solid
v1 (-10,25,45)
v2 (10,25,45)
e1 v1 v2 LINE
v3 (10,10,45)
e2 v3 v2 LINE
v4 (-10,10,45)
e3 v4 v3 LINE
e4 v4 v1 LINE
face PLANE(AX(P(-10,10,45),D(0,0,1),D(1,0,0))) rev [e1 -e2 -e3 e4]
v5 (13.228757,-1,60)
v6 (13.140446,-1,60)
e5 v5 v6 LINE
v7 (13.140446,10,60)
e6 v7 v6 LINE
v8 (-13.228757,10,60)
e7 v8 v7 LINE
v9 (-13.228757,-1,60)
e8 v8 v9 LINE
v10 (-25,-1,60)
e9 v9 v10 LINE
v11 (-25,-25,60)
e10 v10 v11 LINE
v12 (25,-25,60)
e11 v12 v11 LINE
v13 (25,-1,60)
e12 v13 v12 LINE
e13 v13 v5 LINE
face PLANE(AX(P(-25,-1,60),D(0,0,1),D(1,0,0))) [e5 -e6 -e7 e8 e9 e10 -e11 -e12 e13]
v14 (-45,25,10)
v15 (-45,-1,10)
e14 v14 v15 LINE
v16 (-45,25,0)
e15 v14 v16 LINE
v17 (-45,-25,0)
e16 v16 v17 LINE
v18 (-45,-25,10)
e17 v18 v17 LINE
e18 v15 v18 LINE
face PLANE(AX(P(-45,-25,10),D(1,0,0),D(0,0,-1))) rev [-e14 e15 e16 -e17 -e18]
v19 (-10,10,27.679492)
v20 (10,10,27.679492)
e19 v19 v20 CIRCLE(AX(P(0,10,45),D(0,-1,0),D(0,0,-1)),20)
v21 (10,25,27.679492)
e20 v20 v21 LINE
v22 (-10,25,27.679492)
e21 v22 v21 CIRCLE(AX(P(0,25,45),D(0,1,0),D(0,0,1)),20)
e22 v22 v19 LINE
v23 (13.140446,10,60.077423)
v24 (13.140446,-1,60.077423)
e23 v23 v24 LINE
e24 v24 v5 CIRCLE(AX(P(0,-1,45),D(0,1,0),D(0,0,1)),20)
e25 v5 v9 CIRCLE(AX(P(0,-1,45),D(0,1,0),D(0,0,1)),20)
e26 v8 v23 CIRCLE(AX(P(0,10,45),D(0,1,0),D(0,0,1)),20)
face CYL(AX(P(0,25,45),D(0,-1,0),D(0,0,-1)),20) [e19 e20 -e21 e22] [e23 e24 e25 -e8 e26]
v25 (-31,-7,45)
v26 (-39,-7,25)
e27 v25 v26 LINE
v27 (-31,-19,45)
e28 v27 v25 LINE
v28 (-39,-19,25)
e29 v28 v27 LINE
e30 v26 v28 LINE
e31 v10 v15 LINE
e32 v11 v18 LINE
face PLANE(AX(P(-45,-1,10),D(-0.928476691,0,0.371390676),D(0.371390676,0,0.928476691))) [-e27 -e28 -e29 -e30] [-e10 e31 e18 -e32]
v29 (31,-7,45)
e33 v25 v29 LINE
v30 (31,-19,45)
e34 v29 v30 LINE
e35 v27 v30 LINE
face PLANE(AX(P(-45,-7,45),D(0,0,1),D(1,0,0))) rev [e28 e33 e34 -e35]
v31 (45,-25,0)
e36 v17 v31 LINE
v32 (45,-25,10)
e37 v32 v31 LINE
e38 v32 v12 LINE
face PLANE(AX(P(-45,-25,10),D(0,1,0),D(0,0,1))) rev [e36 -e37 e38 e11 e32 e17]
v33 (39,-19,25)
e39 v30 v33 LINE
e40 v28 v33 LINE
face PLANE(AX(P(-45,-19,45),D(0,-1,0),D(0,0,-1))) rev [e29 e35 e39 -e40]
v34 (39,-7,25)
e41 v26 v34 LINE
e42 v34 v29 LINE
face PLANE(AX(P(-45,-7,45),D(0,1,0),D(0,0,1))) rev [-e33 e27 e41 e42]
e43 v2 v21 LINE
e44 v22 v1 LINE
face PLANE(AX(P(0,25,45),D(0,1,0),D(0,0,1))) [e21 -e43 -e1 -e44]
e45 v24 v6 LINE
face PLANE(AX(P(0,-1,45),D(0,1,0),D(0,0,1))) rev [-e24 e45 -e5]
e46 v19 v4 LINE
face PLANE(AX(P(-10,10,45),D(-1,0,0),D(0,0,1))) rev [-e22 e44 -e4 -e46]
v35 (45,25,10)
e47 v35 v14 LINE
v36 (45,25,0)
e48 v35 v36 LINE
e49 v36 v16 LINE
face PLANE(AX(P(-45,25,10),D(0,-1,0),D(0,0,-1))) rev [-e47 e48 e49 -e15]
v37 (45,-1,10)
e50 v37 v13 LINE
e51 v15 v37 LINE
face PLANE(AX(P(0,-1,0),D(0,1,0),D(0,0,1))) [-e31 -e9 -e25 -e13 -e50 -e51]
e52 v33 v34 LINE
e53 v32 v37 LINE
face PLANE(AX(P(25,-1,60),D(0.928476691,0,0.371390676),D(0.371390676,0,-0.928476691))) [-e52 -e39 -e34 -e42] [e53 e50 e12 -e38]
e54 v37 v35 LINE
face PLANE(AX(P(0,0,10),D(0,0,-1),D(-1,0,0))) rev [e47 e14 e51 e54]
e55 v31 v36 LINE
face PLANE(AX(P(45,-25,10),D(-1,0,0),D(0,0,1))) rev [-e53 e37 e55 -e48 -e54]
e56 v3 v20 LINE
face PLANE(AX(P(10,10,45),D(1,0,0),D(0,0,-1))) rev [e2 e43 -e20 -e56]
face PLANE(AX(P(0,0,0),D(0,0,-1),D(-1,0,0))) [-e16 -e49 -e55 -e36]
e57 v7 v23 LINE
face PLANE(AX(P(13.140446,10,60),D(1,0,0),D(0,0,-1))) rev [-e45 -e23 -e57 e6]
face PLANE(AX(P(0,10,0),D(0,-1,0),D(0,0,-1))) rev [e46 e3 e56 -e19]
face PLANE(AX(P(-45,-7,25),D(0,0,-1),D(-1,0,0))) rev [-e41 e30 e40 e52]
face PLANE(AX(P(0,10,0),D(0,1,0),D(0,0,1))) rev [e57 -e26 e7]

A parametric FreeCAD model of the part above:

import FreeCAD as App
import Part
import Sketcher

V = App.Vector
Q = App.Units.Quantity

doc = App.newDocument("Part")
body = doc.addObject("PartDesign::Body", "Body")

sketch1 = doc.addObject("Sketcher::SketchObject", "Sketch")
body.addObject(sketch1)
sketch1.AttachmentSupport = (doc.XY_Plane, [""])
sketch1.MapMode = "FlatFace"
sketch1.addGeometry([
    Part.LineSegment(V(-45, 25, 0), V(-45, -25, 0)),
    Part.LineSegment(V(-45, -25, 0), V(45, -25, 0)),
    Part.LineSegment(V(45, -25, 0), V(45, 25, 0)),
    Part.LineSegment(V(45, 25, 0), V(-45, 25, 0)),
], False)
sketch1.addConstraint([
    Sketcher.Constraint("Coincident", 0, 2, 1, 1),
    Sketcher.Constraint("Coincident", 1, 2, 2, 1),
    Sketcher.Constraint("Coincident", 2, 2, 3, 1),
    Sketcher.Constraint("Coincident", 3, 2, 0, 1),
    Sketcher.Constraint("Vertical", 0),
    Sketcher.Constraint("Horizontal", 1),
    Sketcher.Constraint("Vertical", 2),
    Sketcher.Constraint("Horizontal", 3),
    Sketcher.Constraint("Symmetric", 0, 2, 2, 2, -1, 1),
    Sketcher.Constraint("DistanceX", 1, 1, 1, 2, Q("90 mm")),
    Sketcher.Constraint("DistanceY", 0, 2, 0, 1, Q("50 mm")),
])
pad1 = doc.addObject("PartDesign::Pad", "Pad")
body.addObject(pad1)
pad1.Profile = sketch1
pad1.Length = 10

sketch2 = doc.addObject("Sketcher::SketchObject", "Sketch001")
body.addObject(sketch2)
sketch2.AttachmentSupport = (doc.XZ_Plane, [""])
sketch2.MapMode = "FlatFace"
sketch2.AttachmentOffset = App.Placement(V(0, 0, 25), App.Rotation())
sketch2.addGeometry([
    Part.LineSegment(V(-45, 10, 0), V(45, 10, 0)),
    Part.LineSegment(V(45, 10, 0), V(25, 60, 0)),
    Part.LineSegment(V(25, 60, 0), V(-25, 60, 0)),
    Part.LineSegment(V(-25, 60, 0), V(-45, 10, 0)),
], False)
sketch2.addConstraint([
    Sketcher.Constraint("Coincident", 0, 2, 1, 1),
    Sketcher.Constraint("Coincident", 1, 2, 2, 1),
    Sketcher.Constraint("Coincident", 2, 2, 3, 1),
    Sketcher.Constraint("Coincident", 3, 2, 0, 1),
    Sketcher.Constraint("Horizontal", 0),
    Sketcher.Constraint("Horizontal", 2),
    Sketcher.Constraint("Equal", 1, 3),
    Sketcher.Constraint("DistanceX", 0, 1, 0, 2, Q("90 mm")),
    Sketcher.Constraint("DistanceX", 2, 2, 2, 1, Q("50 mm")),
    Sketcher.Constraint("DistanceX", -1, 1, 0, 2, Q("45 mm")),
    Sketcher.Constraint("DistanceY", -1, 1, 0, 2, Q("10 mm")),
    Sketcher.Constraint("DistanceY", -1, 1, 1, 2, Q("60 mm")),
])
pad2 = doc.addObject("PartDesign::Pad", "Pad001")
body.addObject(pad2)
pad2.Profile = sketch2
pad2.Length = 24
pad2.Reversed = True

sketch3 = doc.addObject("Sketcher::SketchObject", "Sketch002")
body.addObject(sketch3)
sketch3.AttachmentSupport = (doc.XZ_Plane, [""])
sketch3.MapMode = "FlatFace"
sketch3.AttachmentOffset = App.Placement(V(0, 0, 1), App.Rotation())
sketch3.addGeometry(Part.Circle(V(0, 45, 0), V(0, 0, 1), 20), False)
sketch3.addConstraint([
    Sketcher.Constraint("PointOnObject", 0, 3, -2),
    Sketcher.Constraint("Diameter", 0, Q("40 mm")),
    Sketcher.Constraint("DistanceY", -1, 1, 0, 3, Q("45 mm")),
])
pad3 = doc.addObject("PartDesign::Pad", "Pad002")
body.addObject(pad3)
pad3.Profile = sketch3
pad3.Length = 26
pad3.Reversed = True

sketch4 = doc.addObject("Sketcher::SketchObject", "Sketch003")
body.addObject(sketch4)
sketch4.AttachmentSupport = (doc.XZ_Plane, [""])
sketch4.MapMode = "FlatFace"
sketch4.AttachmentOffset = App.Placement(V(0, 0, -25), App.Rotation())
sketch4.addGeometry([
    Part.LineSegment(V(-10, 18, 0), V(-10, 45, 0)),
    Part.LineSegment(V(-10, 45, 0), V(10, 45, 0)),
    Part.LineSegment(V(10, 45, 0), V(10, 18, 0)),
    Part.LineSegment(V(10, 18, 0), V(-10, 18, 0)),
], False)
sketch4.addConstraint([
    Sketcher.Constraint("Coincident", 0, 2, 1, 1),
    Sketcher.Constraint("Coincident", 1, 2, 2, 1),
    Sketcher.Constraint("Coincident", 2, 2, 3, 1),
    Sketcher.Constraint("Coincident", 3, 2, 0, 1),
    Sketcher.Constraint("Vertical", 0),
    Sketcher.Constraint("Horizontal", 1),
    Sketcher.Constraint("Vertical", 2),
    Sketcher.Constraint("Horizontal", 3),
    Sketcher.Constraint("DistanceX", 1, 1, 1, 2, Q("20 mm")),
    Sketcher.Constraint("DistanceX", 0, 2, -1, 1, Q("10 mm")),
    Sketcher.Constraint("DistanceY", -1, 1, 0, 2, Q("45 mm")),
    Sketcher.Constraint("DistanceY", 0, 1, 0, 2, Q("27.110351 mm")),
])
pocket1 = doc.addObject("PartDesign::Pocket", "Pocket")
body.addObject(pocket1)
pocket1.Profile = sketch4
pocket1.Length = 15
pocket1.Reversed = True

sketch5 = doc.addObject("Sketcher::SketchObject", "Sketch004")
body.addObject(sketch5)
sketch5.AttachmentSupport = (doc.XZ_Plane, [""])
sketch5.MapMode = "FlatFace"
sketch5.AttachmentOffset = App.Placement(V(0, 0, 25), App.Rotation())
sketch5.addGeometry([
    Part.LineSegment(V(-13, 71, 0), V(-13, 60, 0)),
    Part.LineSegment(V(-13, 60, 0), V(13, 60, 0)),
    Part.LineSegment(V(13, 60, 0), V(13, 71, 0)),
    Part.LineSegment(V(13, 71, 0), V(-13, 71, 0)),
], False)
sketch5.addConstraint([
    Sketcher.Constraint("Coincident", 0, 2, 1, 1),
    Sketcher.Constraint("Coincident", 1, 2, 2, 1),
    Sketcher.Constraint("Coincident", 2, 2, 3, 1),
    Sketcher.Constraint("Coincident", 3, 2, 0, 1),
    Sketcher.Constraint("Vertical", 0),
    Sketcher.Constraint("Horizontal", 1),
    Sketcher.Constraint("Vertical", 2),
    Sketcher.Constraint("Horizontal", 3),
    Sketcher.Constraint("DistanceY", -1, 1, 0, 2, Q("60 mm")),
    Sketcher.Constraint("DistanceX", 1, 1, 1, 2, Q("26.369203 mm")),
    Sketcher.Constraint("DistanceY", 0, 2, 0, 1, Q("10.718735 mm")),
    Sketcher.Constraint("DistanceX", 0, 2, -1, 1, Q("13.228757 mm")),
])
pocket2 = doc.addObject("PartDesign::Pocket", "Pocket001")
body.addObject(pocket2)
pocket2.Profile = sketch5
pocket2.Length = 35

sketch6 = doc.addObject("Sketcher::SketchObject", "Sketch005")
body.addObject(sketch6)
sketch6.AttachmentSupport = (doc.YZ_Plane, [""])
sketch6.MapMode = "FlatFace"
sketch6.AttachmentOffset = App.Placement(V(0, 0, 45), App.Rotation())
sketch6.addGeometry([
    Part.LineSegment(V(-7, 45, 0), V(-19, 45, 0)),
    Part.LineSegment(V(-19, 45, 0), V(-19, 25, 0)),
    Part.LineSegment(V(-19, 25, 0), V(-7, 25, 0)),
    Part.LineSegment(V(-7, 25, 0), V(-7, 45, 0)),
], False)
sketch6.addConstraint([
    Sketcher.Constraint("Coincident", 0, 2, 1, 1),
    Sketcher.Constraint("Coincident", 1, 2, 2, 1),
    Sketcher.Constraint("Coincident", 2, 2, 3, 1),
    Sketcher.Constraint("Coincident", 3, 2, 0, 1),
    Sketcher.Constraint("Horizontal", 0),
    Sketcher.Constraint("Vertical", 1),
    Sketcher.Constraint("Horizontal", 2),
    Sketcher.Constraint("Vertical", 3),
    Sketcher.Constraint("DistanceX", 0, 2, 0, 1, Q("12 mm")),
    Sketcher.Constraint("DistanceY", 1, 2, 1, 1, Q("20 mm")),
    Sketcher.Constraint("DistanceX", 0, 2, -1, 1, Q("19 mm")),
    Sketcher.Constraint("DistanceY", -1, 1, 0, 2, Q("45 mm")),
])
pocket3 = doc.addObject("PartDesign::Pocket", "Pocket002")
body.addObject(pocket3)
pocket3.Profile = sketch6
pocket3.Type = "ThroughAll"

doc.recompute()
